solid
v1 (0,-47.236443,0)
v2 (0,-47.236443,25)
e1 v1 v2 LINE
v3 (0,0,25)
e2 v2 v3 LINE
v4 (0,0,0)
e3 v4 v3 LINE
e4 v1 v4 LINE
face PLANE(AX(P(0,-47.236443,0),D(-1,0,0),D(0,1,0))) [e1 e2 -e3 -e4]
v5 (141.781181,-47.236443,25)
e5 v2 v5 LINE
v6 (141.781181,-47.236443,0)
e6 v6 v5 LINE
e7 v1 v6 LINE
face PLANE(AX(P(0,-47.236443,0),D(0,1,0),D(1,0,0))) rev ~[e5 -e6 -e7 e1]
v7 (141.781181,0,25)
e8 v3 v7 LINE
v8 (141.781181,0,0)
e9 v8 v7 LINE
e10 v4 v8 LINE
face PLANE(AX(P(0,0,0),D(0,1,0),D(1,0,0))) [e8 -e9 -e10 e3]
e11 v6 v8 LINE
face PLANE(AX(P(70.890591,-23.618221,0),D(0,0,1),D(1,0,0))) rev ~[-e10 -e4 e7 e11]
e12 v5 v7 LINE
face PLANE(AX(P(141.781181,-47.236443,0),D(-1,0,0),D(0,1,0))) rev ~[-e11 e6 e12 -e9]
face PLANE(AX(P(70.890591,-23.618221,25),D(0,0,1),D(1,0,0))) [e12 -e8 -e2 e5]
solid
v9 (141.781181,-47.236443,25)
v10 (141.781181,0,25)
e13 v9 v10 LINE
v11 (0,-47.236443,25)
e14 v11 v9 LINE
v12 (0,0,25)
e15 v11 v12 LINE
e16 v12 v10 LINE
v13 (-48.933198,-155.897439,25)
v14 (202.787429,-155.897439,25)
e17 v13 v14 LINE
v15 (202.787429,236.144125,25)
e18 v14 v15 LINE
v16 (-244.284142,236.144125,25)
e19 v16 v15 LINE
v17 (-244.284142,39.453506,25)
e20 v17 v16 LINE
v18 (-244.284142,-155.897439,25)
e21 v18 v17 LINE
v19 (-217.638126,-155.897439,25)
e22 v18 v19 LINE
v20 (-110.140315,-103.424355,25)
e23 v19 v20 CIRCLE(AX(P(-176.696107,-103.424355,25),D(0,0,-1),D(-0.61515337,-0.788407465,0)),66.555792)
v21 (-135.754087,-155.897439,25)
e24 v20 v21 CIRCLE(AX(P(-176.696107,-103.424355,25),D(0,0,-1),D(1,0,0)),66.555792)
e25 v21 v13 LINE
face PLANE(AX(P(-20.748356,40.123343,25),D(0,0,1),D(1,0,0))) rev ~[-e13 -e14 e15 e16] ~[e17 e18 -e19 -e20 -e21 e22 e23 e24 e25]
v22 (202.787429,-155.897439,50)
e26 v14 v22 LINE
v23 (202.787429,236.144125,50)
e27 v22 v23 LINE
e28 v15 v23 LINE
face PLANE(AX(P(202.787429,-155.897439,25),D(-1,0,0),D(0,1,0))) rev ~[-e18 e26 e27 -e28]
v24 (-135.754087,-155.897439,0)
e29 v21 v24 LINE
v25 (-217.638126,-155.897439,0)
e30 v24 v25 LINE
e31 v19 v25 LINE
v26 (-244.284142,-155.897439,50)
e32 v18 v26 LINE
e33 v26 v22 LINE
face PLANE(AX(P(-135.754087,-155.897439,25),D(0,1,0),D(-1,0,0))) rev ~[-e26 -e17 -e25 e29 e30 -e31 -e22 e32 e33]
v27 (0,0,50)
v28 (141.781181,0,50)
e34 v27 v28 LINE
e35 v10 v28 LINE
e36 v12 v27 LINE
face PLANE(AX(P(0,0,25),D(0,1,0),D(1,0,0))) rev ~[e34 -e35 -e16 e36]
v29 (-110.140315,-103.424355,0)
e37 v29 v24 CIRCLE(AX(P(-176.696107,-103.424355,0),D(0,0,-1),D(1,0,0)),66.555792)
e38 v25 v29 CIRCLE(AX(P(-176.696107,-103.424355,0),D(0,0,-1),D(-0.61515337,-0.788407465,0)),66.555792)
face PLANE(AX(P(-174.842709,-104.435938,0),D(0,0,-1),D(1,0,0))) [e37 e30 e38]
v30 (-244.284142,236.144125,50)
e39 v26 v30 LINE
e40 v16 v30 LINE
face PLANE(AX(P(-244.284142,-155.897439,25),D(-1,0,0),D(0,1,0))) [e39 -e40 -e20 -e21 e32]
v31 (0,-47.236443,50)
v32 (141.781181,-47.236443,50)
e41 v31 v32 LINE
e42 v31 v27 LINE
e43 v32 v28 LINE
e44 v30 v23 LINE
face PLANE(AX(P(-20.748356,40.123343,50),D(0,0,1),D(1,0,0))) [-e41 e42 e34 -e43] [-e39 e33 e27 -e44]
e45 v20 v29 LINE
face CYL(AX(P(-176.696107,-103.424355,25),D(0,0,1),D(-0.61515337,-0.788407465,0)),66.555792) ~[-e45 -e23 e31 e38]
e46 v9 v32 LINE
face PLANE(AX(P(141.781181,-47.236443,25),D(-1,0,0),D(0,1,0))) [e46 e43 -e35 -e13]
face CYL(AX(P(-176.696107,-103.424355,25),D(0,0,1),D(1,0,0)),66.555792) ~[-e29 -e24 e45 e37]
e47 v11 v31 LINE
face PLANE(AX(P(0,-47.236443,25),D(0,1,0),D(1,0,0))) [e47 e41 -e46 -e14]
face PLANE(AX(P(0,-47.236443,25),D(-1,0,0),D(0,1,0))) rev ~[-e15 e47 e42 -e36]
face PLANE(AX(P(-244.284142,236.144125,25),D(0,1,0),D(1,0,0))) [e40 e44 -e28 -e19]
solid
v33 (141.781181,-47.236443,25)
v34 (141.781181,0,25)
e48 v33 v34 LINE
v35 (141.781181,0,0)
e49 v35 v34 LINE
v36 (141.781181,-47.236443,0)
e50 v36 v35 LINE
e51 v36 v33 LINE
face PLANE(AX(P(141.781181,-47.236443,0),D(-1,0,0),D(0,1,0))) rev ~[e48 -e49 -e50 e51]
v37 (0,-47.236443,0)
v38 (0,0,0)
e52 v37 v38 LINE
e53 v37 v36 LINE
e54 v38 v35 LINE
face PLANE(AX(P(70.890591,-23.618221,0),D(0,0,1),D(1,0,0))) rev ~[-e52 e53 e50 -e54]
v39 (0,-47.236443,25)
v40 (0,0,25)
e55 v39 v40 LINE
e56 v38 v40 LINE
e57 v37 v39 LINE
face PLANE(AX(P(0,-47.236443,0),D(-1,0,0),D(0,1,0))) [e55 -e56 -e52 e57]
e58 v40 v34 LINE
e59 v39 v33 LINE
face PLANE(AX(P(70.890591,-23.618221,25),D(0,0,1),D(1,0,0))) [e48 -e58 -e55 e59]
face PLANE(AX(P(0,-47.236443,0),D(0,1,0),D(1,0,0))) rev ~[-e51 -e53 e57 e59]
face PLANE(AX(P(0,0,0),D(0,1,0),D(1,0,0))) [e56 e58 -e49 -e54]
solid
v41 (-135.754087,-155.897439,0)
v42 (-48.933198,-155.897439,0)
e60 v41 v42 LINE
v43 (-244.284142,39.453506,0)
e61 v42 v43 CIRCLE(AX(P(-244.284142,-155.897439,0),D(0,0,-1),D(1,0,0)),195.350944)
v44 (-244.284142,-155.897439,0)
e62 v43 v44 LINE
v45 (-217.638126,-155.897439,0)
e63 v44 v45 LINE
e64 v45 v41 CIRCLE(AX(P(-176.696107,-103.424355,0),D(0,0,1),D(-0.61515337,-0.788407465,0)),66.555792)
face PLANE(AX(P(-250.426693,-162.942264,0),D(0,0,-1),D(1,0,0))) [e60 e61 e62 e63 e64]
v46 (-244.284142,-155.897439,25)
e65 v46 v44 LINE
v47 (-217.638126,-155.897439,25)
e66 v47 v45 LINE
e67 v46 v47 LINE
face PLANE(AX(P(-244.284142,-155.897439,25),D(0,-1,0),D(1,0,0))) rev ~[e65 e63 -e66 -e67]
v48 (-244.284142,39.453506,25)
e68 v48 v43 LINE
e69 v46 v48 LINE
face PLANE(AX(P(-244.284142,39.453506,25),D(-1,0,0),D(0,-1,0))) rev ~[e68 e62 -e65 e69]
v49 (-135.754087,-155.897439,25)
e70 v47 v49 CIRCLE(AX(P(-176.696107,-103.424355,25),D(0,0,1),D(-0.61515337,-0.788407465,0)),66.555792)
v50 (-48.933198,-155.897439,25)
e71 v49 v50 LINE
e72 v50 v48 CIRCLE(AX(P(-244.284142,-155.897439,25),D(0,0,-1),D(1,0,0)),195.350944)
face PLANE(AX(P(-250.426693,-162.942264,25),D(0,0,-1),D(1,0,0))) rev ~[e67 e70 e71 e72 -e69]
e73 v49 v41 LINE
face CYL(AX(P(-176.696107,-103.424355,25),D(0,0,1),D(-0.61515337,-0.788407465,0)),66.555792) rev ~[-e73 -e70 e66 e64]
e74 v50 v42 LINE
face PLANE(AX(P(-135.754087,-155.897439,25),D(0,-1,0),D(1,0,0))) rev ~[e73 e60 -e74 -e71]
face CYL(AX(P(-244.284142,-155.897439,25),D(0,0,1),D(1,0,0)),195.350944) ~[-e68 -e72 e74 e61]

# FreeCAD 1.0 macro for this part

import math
import FreeCAD as App
import Part
import Sketcher

V = App.Vector

doc = App.newDocument("Part")
body = doc.addObject("PartDesign::Body", "Body")

# Sketch on XY plane
sketch1 = doc.addObject("Sketcher::SketchObject", "Sketch")
body.addObject(sketch1)
sketch1.AttachmentSupport = (doc.XY_Plane, [""])
sketch1.MapMode = "FlatFace"
sketch1.addGeometry([
    Part.LineSegment(V(0, 0, 0), V(0, -47.236443, 0)),
    Part.LineSegment(V(0, -47.236443, 0), V(141.781181, -47.236443, 0)),
    Part.LineSegment(V(141.781181, -47.236443, 0), V(141.781181, 0, 0)),
    Part.LineSegment(V(141.781181, 0, 0), V(0, 0, 0)),
], False)
sketch1.addConstraint([
    Sketcher.Constraint("Coincident", 0, 2, 1, 1),
    Sketcher.Constraint("Coincident", 1, 2, 2, 1),
    Sketcher.Constraint("Coincident", 2, 2, 3, 1),
    Sketcher.Constraint("Coincident", 3, 2, 0, 1),
    Sketcher.Constraint("Vertical", 0),
    Sketcher.Constraint("Horizontal", 1),
    Sketcher.Constraint("Vertical", 2),
    Sketcher.Constraint("Horizontal", 3),
    Sketcher.Constraint("Coincident", 3, 2, -1, 1),
    Sketcher.Constraint("DistanceX", 1, 1, 1, 2, 141.781181),
    Sketcher.Constraint("DistanceY", 0, 2, 0, 1, 47.236443),
])
pad1 = doc.addObject("PartDesign::Pad", "Pad")
body.addObject(pad1)
pad1.Profile = sketch1
pad1.Length = 25
body2 = doc.addObject("PartDesign::Body", "Body001")

# Sketch on XY plane
sketch2 = doc.addObject("Sketcher::SketchObject", "Sketch001")
body2.addObject(sketch2)
sketch2.AttachmentSupport = (doc.getObject("XY_Plane001"), [""])
sketch2.MapMode = "FlatFace"
sketch2.addGeometry([
    Part.LineSegment(V(0, 0, 0), V(0, -47.236443, 0)),
    Part.LineSegment(V(0, -47.236443, 0), V(141.781181, -47.236443, 0)),
    Part.LineSegment(V(141.781181, -47.236443, 0), V(141.781181, 0, 0)),
    Part.LineSegment(V(141.781181, 0, 0), V(0, 0, 0)),
], False)
sketch2.addConstraint([
    Sketcher.Constraint("Coincident", 0, 2, 1, 1),
    Sketcher.Constraint("Coincident", 1, 2, 2, 1),
    Sketcher.Constraint("Coincident", 2, 2, 3, 1),
    Sketcher.Constraint("Coincident", 3, 2, 0, 1),
    Sketcher.Constraint("Vertical", 0),
    Sketcher.Constraint("Horizontal", 1),
    Sketcher.Constraint("Vertical", 2),
    Sketcher.Constraint("Horizontal", 3),
    Sketcher.Constraint("Coincident", 3, 2, -1, 1),
    Sketcher.Constraint("DistanceX", 1, 1, 1, 2, 141.781181),
    Sketcher.Constraint("DistanceY", 0, 2, 0, 1, 47.236443),
])
pad2 = doc.addObject("PartDesign::Pad", "Pad001")
body2.addObject(pad2)
pad2.Profile = sketch2
pad2.Length = 25
body3 = doc.addObject("PartDesign::Body", "Body002")
body3.AllowCompound = True

# Sketch on XY plane
sketch3 = doc.addObject("Sketcher::SketchObject", "Sketch002")
body3.addObject(sketch3)
sketch3.AttachmentSupport = (doc.getObject("XY_Plane002"), [""])
sketch3.MapMode = "FlatFace"
sketch3.AttachmentOffset = App.Placement(V(0, 0, 25), App.Rotation())
sketch3.addGeometry([
    Part.LineSegment(V(-244.284142, 236.144125, 0), V(-244.284142, -155.897439, 0)),  # 0
    Part.LineSegment(V(-244.284142, -155.897439, 0), V(202.787429, -155.897439, 0)),  # 1
    Part.LineSegment(V(202.787429, -155.897439, 0), V(202.787429, 236.144125, 0)),  # 2
    Part.LineSegment(V(202.787429, 236.144125, 0), V(-244.284142, 236.144125, 0)),  # 3
    Part.LineSegment(V(141.781181, -47.236443, 0), V(0, -47.236443, 0)),  # 4
    Part.LineSegment(V(0, -47.236443, 0), V(0, 0, 0)),  # 5
    Part.LineSegment(V(0, 0, 0), V(141.781181, 0, 0)),  # 6
    Part.LineSegment(V(141.781181, 0, 0), V(141.781181, -47.236443, 0)),  # 7
], False)
sketch3.addConstraint([
    Sketcher.Constraint("Coincident", 0, 2, 1, 1),
    Sketcher.Constraint("Coincident", 1, 2, 2, 1),
    Sketcher.Constraint("Coincident", 2, 2, 3, 1),
    Sketcher.Constraint("Coincident", 3, 2, 0, 1),
    Sketcher.Constraint("Coincident", 4, 2, 5, 1),
    Sketcher.Constraint("Coincident", 5, 2, 6, 1),
    Sketcher.Constraint("Coincident", 6, 2, 7, 1),
    Sketcher.Constraint("Coincident", 7, 2, 4, 1),
    Sketcher.Constraint("Vertical", 0),
    Sketcher.Constraint("Horizontal", 1),
    Sketcher.Constraint("Vertical", 2),
    Sketcher.Constraint("Horizontal", 3),
    Sketcher.Constraint("Horizontal", 4),
    Sketcher.Constraint("Vertical", 5),
    Sketcher.Constraint("Horizontal", 6),
    Sketcher.Constraint("Vertical", 7),
    Sketcher.Constraint("Coincident", 5, 2, -1, 1),
    Sketcher.Constraint("DistanceX", 1, 1, 1, 2, 447.071571),
    Sketcher.Constraint("DistanceX", 4, 2, 4, 1, 141.781181),
    Sketcher.Constraint("DistanceY", 0, 2, 0, 1, 392.041564),
    Sketcher.Constraint("DistanceY", 5, 1, 5, 2, 47.236443),
    Sketcher.Constraint("DistanceX", 0, 2, -1, 1, 244.284142),
    Sketcher.Constraint("DistanceY", 0, 2, -1, 1, 155.897439),
])
pad3 = doc.addObject("PartDesign::Pad", "Pad002")
body3.addObject(pad3)
pad3.Profile = sketch3
pad3.Length = 25

# Sketch on XY plane
sketch4 = doc.addObject("Sketcher::SketchObject", "Sketch003")
body3.addObject(sketch4)
sketch4.AttachmentSupport = (doc.getObject("XY_Plane002"), [""])
sketch4.MapMode = "FlatFace"
sketch4.AttachmentOffset = App.Placement(V(0, 0, 25), App.Rotation())
sketch4.addGeometry([
    Part.LineSegment(V(-135.754087, -155.897439, 0), V(-48.933198, -155.897439, 0)),  # 0
    Part.ArcOfCircle(Part.Circle(V(-244.284142, -155.897439, 0), V(0, 0, 1), 195.350944), math.radians(90), math.radians(360)),  # 1
    Part.LineSegment(V(-244.284142, 39.453506, 0), V(-244.284142, -155.897439, 0)),  # 2
    Part.LineSegment(V(-244.284142, -155.897439, 0), V(-217.638126, -155.897439, 0)),  # 3
    Part.ArcOfCircle(Part.Circle(V(-176.696107, -103.424355, 0), V(0, 0, 1), 66.555792), math.radians(-127.963065), math.radians(-52.036935)),  # 4
    Part.ArcOfCircle(Part.Circle(V(-176.696107, -103.424355, 0), V(0, 0, 1), 66.555792), math.radians(-52.036935), math.radians(0)),  # 5
    Part.LineSegment(V(-135.754087, -155.897439, 0), V(-217.638126, -155.897439, 0)),  # 6
    Part.ArcOfCircle(Part.Circle(V(-176.696107, -103.424355, 0), V(0, 0, 1), 66.555792), math.radians(0), math.radians(232.036935)),  # 7
], False)
sketch4.addConstraint([
    Sketcher.Constraint("Coincident", 0, 2, 1, 2),
    Sketcher.Constraint("Coincident", 1, 1, 2, 1),
    Sketcher.Constraint("Coincident", 2, 2, 3, 1),
    Sketcher.Constraint("Coincident", 3, 2, 4, 1),
    Sketcher.Constraint("Coincident", 4, 2, 0, 1),
    Sketcher.Constraint("Coincident", 5, 1, 6, 1),
    Sketcher.Constraint("Coincident", 6, 2, 7, 2),
    Sketcher.Constraint("Tangent", 7, 1, 5, 2),
    Sketcher.Constraint("Horizontal", 0),
    Sketcher.Constraint("Vertical", 2),
    Sketcher.Constraint("Horizontal", 3),
    Sketcher.Constraint("Horizontal", 6),
    Sketcher.Constraint("Coincident", 5, 3, 4, 3),
    Sketcher.Constraint("Coincident", 2, 2, 1, 3),
    Sketcher.Constraint("Coincident", 5, 1, 4, 2),
    Sketcher.Constraint("Coincident", 6, 2, 3, 2),
    Sketcher.Constraint("Horizontal", 5, 3, 7, 1),
    Sketcher.Constraint("Radius", 4, 66.555792),
    Sketcher.Constraint("Radius", 1, 195.350944),
    Sketcher.Constraint("DistanceX", 0, 1, 0, 2, 86.820889),
    Sketcher.Constraint("DistanceX", 6, 2, 6, 1, 81.884039),
    Sketcher.Constraint("DistanceX", 1, 3, -1, 1, 244.284142),
    Sketcher.Constraint("DistanceY", 1, 3, -1, 1, 155.897439),
])
pad4 = doc.addObject("PartDesign::Pad", "Pad003")
body3.addObject(pad4)
pad4.Profile = sketch4
pad4.Length = 25
pad4.Reversed = True

doc.recompute()
